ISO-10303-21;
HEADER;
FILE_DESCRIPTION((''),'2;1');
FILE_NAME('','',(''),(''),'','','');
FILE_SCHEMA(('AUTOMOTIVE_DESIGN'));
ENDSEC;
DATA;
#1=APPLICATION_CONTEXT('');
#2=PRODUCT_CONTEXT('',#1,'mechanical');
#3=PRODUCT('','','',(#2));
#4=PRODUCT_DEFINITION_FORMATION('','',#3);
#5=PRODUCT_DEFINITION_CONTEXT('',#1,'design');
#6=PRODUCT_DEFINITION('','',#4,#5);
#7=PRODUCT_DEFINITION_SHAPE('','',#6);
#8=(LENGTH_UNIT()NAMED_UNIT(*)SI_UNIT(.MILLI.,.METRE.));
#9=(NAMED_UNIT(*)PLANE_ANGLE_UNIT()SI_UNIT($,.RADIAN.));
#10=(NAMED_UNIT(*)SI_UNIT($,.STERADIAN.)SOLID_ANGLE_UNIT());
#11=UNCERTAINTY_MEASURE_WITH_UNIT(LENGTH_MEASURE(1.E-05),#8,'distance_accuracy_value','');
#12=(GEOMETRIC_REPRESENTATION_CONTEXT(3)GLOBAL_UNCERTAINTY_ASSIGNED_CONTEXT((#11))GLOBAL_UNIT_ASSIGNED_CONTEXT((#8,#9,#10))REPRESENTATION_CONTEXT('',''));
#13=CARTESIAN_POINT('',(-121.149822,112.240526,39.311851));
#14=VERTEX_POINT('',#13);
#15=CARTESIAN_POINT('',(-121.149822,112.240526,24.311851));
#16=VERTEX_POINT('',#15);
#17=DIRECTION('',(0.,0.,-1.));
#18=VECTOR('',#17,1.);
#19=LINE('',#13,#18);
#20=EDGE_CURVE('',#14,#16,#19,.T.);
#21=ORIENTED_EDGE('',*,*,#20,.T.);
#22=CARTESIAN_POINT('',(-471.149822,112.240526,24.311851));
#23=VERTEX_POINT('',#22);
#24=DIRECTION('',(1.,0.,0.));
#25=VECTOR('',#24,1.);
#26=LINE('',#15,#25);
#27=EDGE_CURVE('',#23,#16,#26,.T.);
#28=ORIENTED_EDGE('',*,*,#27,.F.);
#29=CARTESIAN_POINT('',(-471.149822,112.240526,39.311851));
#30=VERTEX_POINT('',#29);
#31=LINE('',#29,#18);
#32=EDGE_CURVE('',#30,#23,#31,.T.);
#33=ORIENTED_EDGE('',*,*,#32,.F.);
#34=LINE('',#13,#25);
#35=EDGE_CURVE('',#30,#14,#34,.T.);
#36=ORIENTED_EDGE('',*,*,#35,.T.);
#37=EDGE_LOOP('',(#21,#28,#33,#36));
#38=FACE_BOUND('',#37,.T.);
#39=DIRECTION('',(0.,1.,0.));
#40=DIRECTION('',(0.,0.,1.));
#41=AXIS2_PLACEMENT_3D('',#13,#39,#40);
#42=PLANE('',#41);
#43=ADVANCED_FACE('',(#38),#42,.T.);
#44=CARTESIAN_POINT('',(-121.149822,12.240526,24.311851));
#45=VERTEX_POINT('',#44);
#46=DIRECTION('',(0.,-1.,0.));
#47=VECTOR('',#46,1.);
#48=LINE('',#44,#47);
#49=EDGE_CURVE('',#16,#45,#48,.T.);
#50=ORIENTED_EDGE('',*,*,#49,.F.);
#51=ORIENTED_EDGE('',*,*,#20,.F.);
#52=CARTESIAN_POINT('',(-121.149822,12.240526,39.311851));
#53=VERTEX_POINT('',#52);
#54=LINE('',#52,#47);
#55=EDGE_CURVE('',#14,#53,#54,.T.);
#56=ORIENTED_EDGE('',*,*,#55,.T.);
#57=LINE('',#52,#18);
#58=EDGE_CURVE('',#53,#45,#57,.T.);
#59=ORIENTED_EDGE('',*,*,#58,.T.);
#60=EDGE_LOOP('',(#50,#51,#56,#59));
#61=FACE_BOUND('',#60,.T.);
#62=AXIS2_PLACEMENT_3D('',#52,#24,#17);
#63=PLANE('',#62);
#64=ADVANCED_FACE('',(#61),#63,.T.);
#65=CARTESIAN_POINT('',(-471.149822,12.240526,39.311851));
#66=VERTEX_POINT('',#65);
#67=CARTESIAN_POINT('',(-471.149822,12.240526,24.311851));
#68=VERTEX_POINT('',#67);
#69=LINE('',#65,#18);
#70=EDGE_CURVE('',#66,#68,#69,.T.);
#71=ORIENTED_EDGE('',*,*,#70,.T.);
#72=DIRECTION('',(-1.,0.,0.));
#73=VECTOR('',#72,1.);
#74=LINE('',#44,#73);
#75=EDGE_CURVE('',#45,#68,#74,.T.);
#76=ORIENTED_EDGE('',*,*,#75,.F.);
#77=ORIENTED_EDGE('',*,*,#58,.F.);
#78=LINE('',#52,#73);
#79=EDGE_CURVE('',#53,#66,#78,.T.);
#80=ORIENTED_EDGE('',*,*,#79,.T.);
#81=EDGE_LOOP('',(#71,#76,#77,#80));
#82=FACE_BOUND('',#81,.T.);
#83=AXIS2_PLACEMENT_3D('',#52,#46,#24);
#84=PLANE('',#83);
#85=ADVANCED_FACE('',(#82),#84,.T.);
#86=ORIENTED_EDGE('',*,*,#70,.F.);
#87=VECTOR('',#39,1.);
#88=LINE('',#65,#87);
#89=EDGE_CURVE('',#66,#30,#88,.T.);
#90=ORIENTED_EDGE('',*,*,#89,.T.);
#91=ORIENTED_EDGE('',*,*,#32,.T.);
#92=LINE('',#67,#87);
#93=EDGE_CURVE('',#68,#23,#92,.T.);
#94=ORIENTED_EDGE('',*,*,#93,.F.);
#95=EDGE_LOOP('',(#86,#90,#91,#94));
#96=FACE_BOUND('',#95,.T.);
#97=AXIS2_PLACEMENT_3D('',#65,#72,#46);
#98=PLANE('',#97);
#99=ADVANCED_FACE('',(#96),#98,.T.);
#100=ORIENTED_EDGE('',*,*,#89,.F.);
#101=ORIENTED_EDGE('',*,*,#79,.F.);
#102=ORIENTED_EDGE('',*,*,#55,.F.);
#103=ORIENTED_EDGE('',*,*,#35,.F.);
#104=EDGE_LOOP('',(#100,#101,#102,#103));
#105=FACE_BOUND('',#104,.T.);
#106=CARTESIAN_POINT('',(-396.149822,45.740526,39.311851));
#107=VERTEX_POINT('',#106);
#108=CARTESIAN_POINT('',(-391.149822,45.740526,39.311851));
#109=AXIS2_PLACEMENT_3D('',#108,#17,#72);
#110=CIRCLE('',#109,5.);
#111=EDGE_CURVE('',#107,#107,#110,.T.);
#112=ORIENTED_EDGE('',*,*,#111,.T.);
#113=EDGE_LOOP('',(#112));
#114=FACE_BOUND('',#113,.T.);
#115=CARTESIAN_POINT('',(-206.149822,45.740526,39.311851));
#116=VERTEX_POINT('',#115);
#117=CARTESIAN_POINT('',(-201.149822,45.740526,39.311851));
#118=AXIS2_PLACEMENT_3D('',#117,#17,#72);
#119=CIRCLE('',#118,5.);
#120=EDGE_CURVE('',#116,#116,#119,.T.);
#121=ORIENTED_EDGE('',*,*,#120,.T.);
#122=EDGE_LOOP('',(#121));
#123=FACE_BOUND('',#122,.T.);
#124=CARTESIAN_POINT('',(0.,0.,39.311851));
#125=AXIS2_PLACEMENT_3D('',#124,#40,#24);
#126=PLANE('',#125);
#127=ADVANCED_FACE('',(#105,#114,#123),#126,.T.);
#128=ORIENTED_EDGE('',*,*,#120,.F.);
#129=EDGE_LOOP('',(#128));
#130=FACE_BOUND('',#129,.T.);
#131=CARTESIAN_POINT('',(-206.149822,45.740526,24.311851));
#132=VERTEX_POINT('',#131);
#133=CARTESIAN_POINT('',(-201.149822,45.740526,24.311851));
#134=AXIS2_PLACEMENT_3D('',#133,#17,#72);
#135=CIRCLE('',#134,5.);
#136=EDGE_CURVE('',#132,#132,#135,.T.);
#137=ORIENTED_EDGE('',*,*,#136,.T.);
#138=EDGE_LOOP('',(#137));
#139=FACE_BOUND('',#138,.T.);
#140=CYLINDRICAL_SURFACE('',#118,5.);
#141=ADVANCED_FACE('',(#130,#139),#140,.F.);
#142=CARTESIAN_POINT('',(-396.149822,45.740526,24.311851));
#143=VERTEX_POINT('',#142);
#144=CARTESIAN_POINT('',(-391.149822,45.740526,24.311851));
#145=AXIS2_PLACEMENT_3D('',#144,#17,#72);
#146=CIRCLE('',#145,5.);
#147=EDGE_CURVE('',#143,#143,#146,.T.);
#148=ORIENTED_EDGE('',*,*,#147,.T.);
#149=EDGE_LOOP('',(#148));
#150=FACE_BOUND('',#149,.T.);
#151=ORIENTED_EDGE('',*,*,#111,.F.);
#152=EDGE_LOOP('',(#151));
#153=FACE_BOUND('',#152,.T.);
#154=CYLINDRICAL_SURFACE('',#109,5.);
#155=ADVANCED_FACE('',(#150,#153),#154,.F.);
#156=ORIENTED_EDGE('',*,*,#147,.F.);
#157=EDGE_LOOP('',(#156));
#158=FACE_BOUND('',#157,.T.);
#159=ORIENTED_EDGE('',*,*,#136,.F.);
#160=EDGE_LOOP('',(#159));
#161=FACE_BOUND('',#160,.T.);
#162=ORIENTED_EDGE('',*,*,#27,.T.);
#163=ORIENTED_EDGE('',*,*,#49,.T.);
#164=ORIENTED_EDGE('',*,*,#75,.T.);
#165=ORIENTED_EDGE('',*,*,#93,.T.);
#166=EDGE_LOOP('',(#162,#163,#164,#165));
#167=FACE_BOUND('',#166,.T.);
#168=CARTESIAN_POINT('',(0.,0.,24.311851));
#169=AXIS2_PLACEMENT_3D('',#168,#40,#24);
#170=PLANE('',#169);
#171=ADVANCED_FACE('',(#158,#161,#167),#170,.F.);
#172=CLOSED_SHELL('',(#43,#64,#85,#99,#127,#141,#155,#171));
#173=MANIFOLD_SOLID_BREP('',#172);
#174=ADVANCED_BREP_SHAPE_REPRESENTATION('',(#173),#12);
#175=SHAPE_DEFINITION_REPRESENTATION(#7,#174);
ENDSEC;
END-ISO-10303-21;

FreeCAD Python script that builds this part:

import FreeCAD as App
import Part
import Sketcher
from FreeCAD import Vector


def add_polygon(sketch, points):
    """Adds a closed chain of lines whose ends are joined by coincident constraints."""
    first, n = sketch.GeometryCount, len(points)
    for a, b in zip(points, points[1:] + points[:1]):
        sketch.addGeometry(Part.LineSegment(App.Vector(*a, 0), App.Vector(*b, 0)), False)
    for i in range(n):
        sketch.addConstraint(Sketcher.Constraint("Coincident", first + i, 2, first + (i + 1) % n, 1))

doc = App.newDocument("Part")
params = doc.addObject("Spreadsheet::Sheet", "Params")
for row, (alias, value) in enumerate([
    ("sketch1_diameter", "10 mm"),
    ("sketch1_width", "350 mm"),
    ("sketch1_height", "100 mm"),
    ("pad1_length", "15 mm"),
], start=1):
    params.set(f"A{row}", alias)
    params.set(f"B{row}", "=" + value)
    params.setAlias(f"B{row}", alias)

body = doc.addObject("PartDesign::Body", "Body")

# Sketch on XY plane
sketch1 = doc.addObject("Sketcher::SketchObject", "Sketch")
body.addObject(sketch1)
sketch1.AttachmentSupport = (doc.XY_Plane, [""])
sketch1.MapMode = "FlatFace"
sketch1.AttachmentOffset = App.Placement(Vector(0, 0, 24.311851), App.Rotation())
add_polygon(sketch1, [(-121.149822, 112.240526), (-121.149822, 12.240526), (-471.149822, 12.240526), (-471.149822, 112.240526)])  # lines 0-3
sketch1.addGeometry(Part.Circle(Vector(-201.149822, 45.740526, 0), Vector(0, 0, 1), 5), False)  # 4
sketch1.addGeometry(Part.Circle(Vector(-391.149822, 45.740526, 0), Vector(0, 0, 1), 5), False)  # 5
sketch1.addConstraint([
    Sketcher.Constraint("Vertical", 0),
    Sketcher.Constraint("Horizontal", 1),
    Sketcher.Constraint("Vertical", 2),
    Sketcher.Constraint("Horizontal", 3),
    Sketcher.Constraint("Equal", 4, 5),
    Sketcher.Constraint("Horizontal", 4, 3, 5, 3),
    Sketcher.Constraint("Diameter", 4, 10.0),
    Sketcher.Constraint("DistanceX", 1, 2, 1, 1, 350.0),
    Sketcher.Constraint("DistanceY", 0, 2, 0, 1, 100.0),
    Sketcher.Constraint("DistanceX", 5, 3, 4, 3, 190.0),
    Sketcher.Constraint("DistanceX", 4, 3, 0, 2, 80.0),
    Sketcher.Constraint("DistanceY", 0, 2, 4, 3, 33.5),
    Sketcher.Constraint("DistanceX", 4, 3, -1, 1, 201.149822),
    Sketcher.Constraint("DistanceY", -1, 1, 4, 3, 45.740526),
])
sketch1.setExpression("Constraints[10]", "Params.sketch1_diameter")
sketch1.setExpression("Constraints[11]", "Params.sketch1_width")
sketch1.setExpression("Constraints[12]", "Params.sketch1_height")
pad1 = doc.addObject("PartDesign::Pad", "Pad")
body.addObject(pad1)
pad1.Profile = sketch1
pad1.setExpression("Length", "Params.pad1_length")

doc.recompute()
